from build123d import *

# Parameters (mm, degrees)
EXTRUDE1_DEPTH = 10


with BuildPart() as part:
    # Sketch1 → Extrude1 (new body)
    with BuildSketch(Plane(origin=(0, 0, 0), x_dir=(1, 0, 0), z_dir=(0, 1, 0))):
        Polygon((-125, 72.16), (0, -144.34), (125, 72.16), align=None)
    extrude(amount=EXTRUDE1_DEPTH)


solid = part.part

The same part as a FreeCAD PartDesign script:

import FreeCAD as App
import Part
import Sketcher


def add_polygon(sketch, points):
    """Adds a closed chain of lines whose ends are joined by coincident constraints."""
    first, n = sketch.GeometryCount, len(points)
    for a, b in zip(points, points[1:] + points[:1]):
        sketch.addGeometry(Part.LineSegment(App.Vector(*a, 0), App.Vector(*b, 0)), False)
    for i in range(n):
        sketch.addConstraint(Sketcher.Constraint("Coincident", first + i, 2, first + (i + 1) % n, 1))

doc = App.newDocument("Part")
body = doc.addObject("PartDesign::Body", "Body")

# Sketch on XZ plane
sketch1 = body.newObject("Sketcher::SketchObject", "Sketch")
sketch1.AttachmentSupport = (doc.getObject("XZ_Plane"), [""])
sketch1.MapMode = "FlatFace"
add_polygon(sketch1, [(-125, -72.16), (0, 144.34), (125, -72.16)])  # lines 0-2
sketch1.addConstraint([
    Sketcher.Constraint("Horizontal", 2),
    Sketcher.Constraint("PointOnObject", 0, 2, -2),
    Sketcher.Constraint("Equal", 0, 1),
    Sketcher.Constraint("DistanceX", 2, 2, 2, 1, 250.0),
    Sketcher.Constraint("DistanceY", 1, 2, 0, 2, 216.5),
    Sketcher.Constraint("DistanceY", -1, 1, 0, 2, 144.34),
])
pad1 = body.newObject("PartDesign::Pad", "Pad")
pad1.Profile = sketch1
pad1.Length = 10
pad1.Reversed = True

doc.recompute()
